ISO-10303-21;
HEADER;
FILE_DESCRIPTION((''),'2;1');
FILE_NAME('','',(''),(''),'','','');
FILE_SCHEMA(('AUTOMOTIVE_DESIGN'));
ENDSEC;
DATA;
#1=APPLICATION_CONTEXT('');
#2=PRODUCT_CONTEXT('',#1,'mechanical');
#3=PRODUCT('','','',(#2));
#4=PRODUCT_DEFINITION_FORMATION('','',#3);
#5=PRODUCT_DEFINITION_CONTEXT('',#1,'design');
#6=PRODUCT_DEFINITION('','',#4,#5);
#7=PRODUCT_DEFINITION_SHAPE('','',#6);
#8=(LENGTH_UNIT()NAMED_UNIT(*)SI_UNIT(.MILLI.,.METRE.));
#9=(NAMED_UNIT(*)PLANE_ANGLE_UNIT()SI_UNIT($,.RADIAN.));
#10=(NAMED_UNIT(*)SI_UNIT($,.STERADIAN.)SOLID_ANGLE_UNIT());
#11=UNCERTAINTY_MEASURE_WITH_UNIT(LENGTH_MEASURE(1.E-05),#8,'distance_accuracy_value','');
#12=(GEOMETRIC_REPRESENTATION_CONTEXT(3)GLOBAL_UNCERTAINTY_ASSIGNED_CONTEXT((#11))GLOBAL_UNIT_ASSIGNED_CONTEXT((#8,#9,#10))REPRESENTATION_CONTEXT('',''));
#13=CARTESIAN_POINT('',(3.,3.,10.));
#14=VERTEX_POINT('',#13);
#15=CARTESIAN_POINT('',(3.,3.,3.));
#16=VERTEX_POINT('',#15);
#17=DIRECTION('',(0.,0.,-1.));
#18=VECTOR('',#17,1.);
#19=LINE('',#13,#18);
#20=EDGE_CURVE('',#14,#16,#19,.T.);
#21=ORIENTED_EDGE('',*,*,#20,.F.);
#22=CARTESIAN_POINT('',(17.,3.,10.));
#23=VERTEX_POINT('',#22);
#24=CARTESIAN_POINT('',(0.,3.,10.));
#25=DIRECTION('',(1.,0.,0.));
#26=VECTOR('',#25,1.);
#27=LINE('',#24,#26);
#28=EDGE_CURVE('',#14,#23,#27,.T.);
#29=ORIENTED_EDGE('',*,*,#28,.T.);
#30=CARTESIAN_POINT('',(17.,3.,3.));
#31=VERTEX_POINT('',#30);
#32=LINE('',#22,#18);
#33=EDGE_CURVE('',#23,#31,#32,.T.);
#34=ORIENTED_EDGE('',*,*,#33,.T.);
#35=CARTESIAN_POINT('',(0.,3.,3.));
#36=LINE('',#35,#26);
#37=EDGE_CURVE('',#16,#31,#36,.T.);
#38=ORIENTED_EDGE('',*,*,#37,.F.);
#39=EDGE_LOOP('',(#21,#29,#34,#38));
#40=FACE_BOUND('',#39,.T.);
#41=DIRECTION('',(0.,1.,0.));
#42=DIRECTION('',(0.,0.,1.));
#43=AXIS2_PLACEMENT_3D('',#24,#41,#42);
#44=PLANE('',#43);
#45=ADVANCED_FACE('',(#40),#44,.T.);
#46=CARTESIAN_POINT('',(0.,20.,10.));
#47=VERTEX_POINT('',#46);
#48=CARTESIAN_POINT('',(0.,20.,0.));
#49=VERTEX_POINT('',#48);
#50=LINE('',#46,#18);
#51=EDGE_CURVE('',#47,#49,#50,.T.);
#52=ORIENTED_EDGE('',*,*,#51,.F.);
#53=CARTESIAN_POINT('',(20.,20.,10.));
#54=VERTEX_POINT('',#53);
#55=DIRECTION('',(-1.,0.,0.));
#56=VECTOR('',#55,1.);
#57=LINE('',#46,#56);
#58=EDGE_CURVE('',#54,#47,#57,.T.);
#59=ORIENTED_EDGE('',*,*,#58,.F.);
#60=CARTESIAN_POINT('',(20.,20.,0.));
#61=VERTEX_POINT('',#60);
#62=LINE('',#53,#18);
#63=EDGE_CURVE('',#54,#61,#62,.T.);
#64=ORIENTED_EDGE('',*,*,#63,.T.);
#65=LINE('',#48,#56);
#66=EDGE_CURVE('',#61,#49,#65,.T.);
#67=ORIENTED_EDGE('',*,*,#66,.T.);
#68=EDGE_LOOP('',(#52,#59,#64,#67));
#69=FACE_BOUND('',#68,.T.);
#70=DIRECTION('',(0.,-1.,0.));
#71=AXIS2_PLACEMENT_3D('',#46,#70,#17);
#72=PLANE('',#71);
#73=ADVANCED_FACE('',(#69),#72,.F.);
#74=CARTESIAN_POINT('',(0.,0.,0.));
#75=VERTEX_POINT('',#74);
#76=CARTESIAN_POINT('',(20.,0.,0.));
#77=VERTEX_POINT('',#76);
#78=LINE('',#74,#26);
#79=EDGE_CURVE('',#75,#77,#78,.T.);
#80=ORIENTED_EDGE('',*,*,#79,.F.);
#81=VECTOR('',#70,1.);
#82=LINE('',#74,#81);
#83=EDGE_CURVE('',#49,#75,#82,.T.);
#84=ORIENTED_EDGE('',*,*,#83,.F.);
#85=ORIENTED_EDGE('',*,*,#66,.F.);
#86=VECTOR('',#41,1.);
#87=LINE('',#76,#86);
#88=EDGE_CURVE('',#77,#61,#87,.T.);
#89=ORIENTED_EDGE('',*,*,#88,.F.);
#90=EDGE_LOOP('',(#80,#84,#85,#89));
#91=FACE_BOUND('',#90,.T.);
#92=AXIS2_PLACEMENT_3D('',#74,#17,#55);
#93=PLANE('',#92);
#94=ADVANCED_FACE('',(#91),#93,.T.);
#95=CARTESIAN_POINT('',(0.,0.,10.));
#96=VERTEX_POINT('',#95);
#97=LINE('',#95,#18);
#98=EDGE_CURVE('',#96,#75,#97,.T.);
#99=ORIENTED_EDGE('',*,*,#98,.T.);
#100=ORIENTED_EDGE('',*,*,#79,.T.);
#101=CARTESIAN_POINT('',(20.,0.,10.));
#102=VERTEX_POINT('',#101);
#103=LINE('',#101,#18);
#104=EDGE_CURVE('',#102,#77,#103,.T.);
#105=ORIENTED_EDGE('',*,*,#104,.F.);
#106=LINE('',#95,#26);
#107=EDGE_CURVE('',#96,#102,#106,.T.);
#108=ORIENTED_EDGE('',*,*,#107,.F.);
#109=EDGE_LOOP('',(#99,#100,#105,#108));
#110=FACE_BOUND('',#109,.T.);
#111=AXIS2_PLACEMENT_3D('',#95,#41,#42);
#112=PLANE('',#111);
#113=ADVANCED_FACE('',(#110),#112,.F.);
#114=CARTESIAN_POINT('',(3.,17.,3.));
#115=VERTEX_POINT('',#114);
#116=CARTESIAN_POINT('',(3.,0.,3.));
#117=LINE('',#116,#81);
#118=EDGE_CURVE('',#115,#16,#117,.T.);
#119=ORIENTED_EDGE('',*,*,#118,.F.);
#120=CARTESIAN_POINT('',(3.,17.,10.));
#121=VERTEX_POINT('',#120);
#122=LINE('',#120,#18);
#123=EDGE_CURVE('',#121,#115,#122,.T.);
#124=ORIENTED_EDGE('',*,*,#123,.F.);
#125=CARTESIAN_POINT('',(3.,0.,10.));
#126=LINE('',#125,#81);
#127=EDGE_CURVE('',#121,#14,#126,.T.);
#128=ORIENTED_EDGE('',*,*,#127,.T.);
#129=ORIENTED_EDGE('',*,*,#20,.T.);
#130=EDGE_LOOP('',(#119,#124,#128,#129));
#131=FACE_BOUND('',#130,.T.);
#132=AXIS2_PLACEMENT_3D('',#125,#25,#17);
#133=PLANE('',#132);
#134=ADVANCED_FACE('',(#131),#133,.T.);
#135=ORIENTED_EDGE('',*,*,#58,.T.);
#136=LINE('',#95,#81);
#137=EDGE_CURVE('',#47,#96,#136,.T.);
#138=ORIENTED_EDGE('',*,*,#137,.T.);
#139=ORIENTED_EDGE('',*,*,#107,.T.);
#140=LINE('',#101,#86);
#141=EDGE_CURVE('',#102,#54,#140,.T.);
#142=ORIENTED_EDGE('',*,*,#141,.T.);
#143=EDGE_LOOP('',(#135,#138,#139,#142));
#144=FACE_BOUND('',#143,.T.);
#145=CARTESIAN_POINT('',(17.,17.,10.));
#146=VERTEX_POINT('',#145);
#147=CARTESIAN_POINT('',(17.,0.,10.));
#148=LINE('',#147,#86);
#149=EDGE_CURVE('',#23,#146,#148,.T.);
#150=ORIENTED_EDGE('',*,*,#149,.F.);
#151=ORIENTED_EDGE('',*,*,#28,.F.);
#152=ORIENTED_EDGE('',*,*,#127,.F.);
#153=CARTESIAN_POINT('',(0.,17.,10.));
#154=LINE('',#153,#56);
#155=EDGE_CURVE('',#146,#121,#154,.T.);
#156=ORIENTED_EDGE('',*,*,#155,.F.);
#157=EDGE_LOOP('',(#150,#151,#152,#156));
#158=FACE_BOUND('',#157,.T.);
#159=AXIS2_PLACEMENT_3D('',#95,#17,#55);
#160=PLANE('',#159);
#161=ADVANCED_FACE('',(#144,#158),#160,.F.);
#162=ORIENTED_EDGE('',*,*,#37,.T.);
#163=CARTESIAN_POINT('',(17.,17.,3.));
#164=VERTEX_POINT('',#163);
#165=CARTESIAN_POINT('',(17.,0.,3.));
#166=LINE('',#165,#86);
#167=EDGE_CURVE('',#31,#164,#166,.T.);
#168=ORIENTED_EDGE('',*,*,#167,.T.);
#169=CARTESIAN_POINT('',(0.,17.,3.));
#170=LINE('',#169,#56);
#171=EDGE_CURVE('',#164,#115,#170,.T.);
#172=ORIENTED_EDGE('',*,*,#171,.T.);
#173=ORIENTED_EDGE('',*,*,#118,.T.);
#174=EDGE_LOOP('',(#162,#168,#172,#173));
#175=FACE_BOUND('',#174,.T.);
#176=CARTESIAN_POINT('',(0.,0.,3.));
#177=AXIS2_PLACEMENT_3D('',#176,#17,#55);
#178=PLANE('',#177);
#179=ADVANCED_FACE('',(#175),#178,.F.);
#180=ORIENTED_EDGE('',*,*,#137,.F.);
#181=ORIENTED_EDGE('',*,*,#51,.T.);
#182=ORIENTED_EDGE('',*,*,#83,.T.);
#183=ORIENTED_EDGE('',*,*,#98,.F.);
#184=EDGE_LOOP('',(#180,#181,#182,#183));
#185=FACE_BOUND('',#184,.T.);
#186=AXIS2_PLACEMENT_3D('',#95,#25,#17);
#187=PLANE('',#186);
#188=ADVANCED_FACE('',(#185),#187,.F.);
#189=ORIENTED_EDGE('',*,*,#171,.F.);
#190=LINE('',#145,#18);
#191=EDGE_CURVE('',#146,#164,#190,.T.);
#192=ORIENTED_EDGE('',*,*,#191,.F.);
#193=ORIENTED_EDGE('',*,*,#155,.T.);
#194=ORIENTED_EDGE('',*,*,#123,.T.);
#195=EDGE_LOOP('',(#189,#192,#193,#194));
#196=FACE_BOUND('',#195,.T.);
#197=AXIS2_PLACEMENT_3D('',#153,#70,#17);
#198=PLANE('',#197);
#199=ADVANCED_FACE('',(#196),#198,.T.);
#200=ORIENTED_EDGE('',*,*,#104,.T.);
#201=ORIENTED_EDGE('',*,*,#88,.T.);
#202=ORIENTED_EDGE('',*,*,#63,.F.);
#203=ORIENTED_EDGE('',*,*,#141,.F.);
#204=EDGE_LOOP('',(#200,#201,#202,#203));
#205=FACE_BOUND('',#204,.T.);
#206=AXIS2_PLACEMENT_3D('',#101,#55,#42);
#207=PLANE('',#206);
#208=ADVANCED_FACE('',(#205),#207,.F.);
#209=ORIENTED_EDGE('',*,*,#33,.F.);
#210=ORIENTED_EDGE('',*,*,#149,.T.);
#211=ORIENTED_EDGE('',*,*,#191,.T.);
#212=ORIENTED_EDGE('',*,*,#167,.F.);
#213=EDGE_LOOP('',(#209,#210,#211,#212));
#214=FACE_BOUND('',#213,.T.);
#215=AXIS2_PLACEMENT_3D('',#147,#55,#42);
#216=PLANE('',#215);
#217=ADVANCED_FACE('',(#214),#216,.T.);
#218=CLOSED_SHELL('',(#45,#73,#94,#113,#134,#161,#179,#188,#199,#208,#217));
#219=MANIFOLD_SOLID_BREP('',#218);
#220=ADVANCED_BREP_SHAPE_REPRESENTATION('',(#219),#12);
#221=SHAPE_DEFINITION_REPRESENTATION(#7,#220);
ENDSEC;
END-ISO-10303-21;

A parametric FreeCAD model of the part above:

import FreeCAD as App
import Part
import Sketcher


def faces_at(feature, points):
    """Names of the faces that lie closest to the given points."""
    faces = feature.Shape.Faces
    near = lambda p: min(range(len(faces)), key=lambda i: faces[i].distToShape(Part.Vertex(*p))[0])
    return sorted({f"Face{near(p) + 1}" for p in points})


def add_polygon(sketch, points):
    """Adds a closed chain of lines whose ends are joined by coincident constraints."""
    first, n = sketch.GeometryCount, len(points)
    for a, b in zip(points, points[1:] + points[:1]):
        sketch.addGeometry(Part.LineSegment(App.Vector(*a, 0), App.Vector(*b, 0)), False)
    for i in range(n):
        sketch.addConstraint(Sketcher.Constraint("Coincident", first + i, 2, first + (i + 1) % n, 1))

doc = App.newDocument("Part")
body = doc.addObject("PartDesign::Body", "Body")

sketch1 = body.newObject("Sketcher::SketchObject", "Sketch")
sketch1.AttachmentSupport = (doc.getObject("XY_Plane"), [""])
sketch1.MapMode = "FlatFace"
add_polygon(sketch1, [(0, 20), (0, 0), (20, 0), (20, 20)])
sketch1.addConstraint(Sketcher.Constraint("Vertical", 0))
sketch1.addConstraint(Sketcher.Constraint("Horizontal", 1))
sketch1.addConstraint(Sketcher.Constraint("Vertical", 2))
sketch1.addConstraint(Sketcher.Constraint("Horizontal", 3))
sketch1.addConstraint(Sketcher.Constraint("Coincident", 0, 2, -1, 1))
sketch1.addConstraint(Sketcher.Constraint("Equal", 3, 0))
sketch1.addConstraint(Sketcher.Constraint("DistanceX", 1, 1, 1, 2, 20.0))
pad1 = body.newObject("PartDesign::Pad", "Pad")
pad1.Profile = sketch1
pad1.Length = 10
doc.recompute()

thickness = body.newObject("PartDesign::Thickness", "Thickness")
thickness.Base = (pad1, faces_at(pad1, [(10, 10, 10)]))
thickness.Value = 3
thickness.Reversed = True
thickness.Join = "Intersection"

doc.recompute()
